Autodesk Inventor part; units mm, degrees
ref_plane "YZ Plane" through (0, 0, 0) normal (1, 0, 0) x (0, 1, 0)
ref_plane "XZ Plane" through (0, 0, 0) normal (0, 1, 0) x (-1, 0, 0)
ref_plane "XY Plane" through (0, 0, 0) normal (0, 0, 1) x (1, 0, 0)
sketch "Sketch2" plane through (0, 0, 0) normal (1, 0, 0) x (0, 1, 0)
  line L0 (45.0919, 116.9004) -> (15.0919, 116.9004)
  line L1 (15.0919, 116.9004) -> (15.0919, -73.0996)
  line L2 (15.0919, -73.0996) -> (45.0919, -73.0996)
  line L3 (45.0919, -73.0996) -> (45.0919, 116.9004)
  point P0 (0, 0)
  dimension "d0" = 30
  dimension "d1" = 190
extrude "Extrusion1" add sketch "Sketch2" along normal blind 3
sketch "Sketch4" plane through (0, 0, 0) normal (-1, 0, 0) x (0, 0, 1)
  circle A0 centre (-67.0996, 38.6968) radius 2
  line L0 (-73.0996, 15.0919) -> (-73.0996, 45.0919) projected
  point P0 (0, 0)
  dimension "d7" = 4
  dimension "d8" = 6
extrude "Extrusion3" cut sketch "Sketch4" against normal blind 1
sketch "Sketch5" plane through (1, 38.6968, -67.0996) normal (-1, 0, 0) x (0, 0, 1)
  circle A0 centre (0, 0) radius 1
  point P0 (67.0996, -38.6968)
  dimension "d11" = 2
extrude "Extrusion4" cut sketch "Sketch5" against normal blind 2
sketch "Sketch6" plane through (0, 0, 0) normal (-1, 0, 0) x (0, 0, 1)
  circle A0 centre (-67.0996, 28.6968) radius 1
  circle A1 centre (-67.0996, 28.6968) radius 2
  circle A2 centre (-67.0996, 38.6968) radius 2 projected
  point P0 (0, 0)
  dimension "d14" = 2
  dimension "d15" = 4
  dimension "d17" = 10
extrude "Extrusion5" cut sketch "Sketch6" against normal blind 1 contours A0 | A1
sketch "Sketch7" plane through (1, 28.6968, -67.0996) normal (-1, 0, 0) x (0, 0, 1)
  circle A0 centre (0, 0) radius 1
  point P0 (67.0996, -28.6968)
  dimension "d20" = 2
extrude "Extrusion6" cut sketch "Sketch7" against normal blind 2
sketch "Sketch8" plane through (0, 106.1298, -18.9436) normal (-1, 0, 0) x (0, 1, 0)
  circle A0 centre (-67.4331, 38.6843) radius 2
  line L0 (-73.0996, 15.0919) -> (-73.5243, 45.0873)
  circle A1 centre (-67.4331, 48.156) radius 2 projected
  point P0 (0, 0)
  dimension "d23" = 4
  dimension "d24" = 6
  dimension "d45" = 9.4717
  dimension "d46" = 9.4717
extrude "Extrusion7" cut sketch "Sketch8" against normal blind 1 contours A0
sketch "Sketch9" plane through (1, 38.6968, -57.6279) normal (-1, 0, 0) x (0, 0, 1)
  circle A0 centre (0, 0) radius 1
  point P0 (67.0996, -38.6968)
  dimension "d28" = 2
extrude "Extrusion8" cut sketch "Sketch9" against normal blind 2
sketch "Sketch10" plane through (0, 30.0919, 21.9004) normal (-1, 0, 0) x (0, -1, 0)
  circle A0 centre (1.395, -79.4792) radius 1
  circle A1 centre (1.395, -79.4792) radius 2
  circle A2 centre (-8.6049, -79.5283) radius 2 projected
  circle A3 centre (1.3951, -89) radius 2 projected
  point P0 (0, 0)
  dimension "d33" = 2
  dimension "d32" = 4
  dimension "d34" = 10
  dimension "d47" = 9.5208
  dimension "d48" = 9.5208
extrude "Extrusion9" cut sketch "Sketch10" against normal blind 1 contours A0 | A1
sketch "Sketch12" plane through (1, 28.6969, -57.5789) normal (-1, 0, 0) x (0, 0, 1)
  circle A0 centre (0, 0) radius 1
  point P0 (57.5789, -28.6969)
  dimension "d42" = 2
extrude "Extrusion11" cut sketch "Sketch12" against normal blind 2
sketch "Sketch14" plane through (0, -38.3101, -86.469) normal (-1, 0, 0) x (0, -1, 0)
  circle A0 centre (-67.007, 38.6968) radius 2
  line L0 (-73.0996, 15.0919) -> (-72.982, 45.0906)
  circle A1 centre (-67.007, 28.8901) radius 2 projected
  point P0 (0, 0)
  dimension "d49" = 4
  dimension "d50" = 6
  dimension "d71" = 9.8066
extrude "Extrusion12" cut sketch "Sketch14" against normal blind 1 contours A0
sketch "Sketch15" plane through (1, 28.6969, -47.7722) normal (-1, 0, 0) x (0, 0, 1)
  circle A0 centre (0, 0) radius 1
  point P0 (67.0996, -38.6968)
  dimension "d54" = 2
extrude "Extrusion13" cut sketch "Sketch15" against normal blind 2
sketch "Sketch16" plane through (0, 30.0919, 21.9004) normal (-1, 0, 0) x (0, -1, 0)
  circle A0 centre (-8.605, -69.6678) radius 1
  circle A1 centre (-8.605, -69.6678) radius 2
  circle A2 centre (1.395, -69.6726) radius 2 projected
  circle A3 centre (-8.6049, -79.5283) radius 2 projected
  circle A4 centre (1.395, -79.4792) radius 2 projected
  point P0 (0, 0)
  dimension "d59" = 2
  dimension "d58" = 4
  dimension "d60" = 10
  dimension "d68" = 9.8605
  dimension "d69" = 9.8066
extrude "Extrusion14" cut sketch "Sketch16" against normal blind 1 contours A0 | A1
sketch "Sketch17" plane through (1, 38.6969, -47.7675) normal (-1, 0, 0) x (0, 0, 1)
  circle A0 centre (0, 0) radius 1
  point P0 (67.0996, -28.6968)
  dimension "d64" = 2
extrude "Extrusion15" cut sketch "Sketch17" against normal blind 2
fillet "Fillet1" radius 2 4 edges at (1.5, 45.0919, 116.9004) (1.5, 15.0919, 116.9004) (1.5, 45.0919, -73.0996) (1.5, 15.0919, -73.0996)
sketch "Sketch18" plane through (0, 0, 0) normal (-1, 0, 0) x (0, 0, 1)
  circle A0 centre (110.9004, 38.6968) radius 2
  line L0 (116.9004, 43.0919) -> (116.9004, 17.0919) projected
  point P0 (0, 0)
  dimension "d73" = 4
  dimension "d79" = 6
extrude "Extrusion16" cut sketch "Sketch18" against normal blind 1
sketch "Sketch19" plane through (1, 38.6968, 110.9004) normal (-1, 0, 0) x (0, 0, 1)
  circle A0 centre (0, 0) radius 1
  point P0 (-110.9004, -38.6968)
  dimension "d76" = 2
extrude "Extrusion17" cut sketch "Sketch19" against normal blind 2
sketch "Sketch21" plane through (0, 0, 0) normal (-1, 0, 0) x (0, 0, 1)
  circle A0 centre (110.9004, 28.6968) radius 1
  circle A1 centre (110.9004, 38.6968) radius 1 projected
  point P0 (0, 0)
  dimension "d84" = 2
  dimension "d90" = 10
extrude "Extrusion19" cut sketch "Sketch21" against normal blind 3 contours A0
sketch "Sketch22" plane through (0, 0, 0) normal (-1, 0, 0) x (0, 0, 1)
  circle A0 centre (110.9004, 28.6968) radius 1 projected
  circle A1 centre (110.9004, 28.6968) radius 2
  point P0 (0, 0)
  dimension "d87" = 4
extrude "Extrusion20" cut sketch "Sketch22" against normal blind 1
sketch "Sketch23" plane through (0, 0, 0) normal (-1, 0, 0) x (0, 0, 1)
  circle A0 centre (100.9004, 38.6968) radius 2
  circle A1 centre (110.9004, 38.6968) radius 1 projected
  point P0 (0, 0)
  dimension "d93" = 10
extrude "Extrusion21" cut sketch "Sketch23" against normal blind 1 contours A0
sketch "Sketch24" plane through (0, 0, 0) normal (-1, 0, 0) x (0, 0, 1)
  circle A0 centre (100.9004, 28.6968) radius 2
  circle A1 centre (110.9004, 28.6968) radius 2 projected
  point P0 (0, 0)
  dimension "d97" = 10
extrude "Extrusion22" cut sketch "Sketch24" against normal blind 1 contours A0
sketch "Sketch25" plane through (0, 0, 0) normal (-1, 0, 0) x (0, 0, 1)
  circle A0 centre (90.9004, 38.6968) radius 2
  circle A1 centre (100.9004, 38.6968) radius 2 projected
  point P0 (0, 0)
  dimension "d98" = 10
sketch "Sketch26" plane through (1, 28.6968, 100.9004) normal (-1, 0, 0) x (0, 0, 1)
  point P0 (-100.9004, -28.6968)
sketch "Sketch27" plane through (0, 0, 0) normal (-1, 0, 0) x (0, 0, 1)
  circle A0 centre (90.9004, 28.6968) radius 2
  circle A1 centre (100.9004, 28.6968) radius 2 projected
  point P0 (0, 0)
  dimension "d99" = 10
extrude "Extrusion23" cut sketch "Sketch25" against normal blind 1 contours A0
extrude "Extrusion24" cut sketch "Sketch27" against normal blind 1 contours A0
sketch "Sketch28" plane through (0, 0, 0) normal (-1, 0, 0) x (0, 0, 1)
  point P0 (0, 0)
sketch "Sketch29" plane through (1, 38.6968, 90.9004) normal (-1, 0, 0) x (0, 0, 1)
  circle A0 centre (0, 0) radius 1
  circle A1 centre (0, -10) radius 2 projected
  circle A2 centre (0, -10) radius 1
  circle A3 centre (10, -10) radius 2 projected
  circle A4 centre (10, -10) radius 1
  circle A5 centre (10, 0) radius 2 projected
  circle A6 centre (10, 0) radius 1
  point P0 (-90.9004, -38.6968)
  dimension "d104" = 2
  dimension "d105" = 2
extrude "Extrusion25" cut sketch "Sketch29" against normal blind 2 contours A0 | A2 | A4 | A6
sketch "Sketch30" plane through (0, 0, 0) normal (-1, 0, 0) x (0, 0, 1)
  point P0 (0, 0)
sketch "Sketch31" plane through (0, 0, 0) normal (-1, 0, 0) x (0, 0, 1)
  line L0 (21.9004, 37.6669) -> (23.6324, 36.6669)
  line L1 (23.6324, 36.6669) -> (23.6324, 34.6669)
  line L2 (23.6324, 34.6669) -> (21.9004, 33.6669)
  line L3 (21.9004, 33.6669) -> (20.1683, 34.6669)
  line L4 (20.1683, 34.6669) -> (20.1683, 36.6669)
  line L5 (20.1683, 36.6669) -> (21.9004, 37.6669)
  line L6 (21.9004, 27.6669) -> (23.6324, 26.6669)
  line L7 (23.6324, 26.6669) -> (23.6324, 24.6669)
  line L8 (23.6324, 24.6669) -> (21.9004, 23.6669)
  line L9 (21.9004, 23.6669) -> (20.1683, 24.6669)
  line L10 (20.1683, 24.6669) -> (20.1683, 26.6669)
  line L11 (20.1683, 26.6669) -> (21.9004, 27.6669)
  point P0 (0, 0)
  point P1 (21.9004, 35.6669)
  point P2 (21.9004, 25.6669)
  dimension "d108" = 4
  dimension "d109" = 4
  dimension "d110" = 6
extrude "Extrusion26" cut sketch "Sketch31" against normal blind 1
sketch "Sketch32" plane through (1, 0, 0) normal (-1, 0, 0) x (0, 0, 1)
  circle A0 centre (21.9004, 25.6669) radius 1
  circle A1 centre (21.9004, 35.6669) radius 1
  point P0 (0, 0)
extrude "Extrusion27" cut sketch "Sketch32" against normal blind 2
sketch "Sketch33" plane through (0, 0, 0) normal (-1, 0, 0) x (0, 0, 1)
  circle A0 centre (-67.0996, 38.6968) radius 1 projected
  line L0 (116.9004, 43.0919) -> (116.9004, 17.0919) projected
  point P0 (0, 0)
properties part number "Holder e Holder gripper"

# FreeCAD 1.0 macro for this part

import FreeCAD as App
import Part
import Sketcher
from FreeCAD import Vector
Q = App.Units.Quantity


def edges_at(feature, points):
    """Names of the edges that pass closest to the given points."""
    edges = feature.Shape.Edges
    near = lambda p: min(range(len(edges)), key=lambda i: edges[i].distToShape(Part.Vertex(*p))[0])
    return sorted({f"Edge{near(p) + 1}" for p in points})

doc = App.newDocument("Part")
body = doc.addObject("PartDesign::Body", "Body")

sketch1 = doc.addObject("Sketcher::SketchObject", "Sketch")
body.addObject(sketch1)
sketch1.AttachmentSupport = (doc.YZ_Plane, [""])
sketch1.MapMode = "FlatFace"
sketch1.addGeometry([
    Part.LineSegment(Vector(45, -73, 0), Vector(45, 117, 0)),
    Part.LineSegment(Vector(45, 117, 0), Vector(15, 117, 0)),
    Part.LineSegment(Vector(15, 117, 0), Vector(15, -73, 0)),
    Part.LineSegment(Vector(15, -73, 0), Vector(45, -73, 0)),
], False)
sketch1.addConstraint([
    Sketcher.Constraint("Coincident", 0, 2, 1, 1),
    Sketcher.Constraint("Coincident", 1, 2, 2, 1),
    Sketcher.Constraint("Coincident", 2, 2, 3, 1),
    Sketcher.Constraint("Coincident", 3, 2, 0, 1),
    Sketcher.Constraint("Vertical", 0),
    Sketcher.Constraint("Horizontal", 1),
    Sketcher.Constraint("Vertical", 2),
    Sketcher.Constraint("Horizontal", 3),
    Sketcher.Constraint("DistanceX", 1, 2, 1, 1, 30.0),
    Sketcher.Constraint("DistanceY", 0, 1, 0, 2, 190.0),
    Sketcher.Constraint("DistanceX", -1, 1, 0, 2, 45.092),
    Sketcher.Constraint("DistanceY", -1, 1, 0, 2, 116.9004),
])
pad1 = doc.addObject("PartDesign::Pad", "Pad")
body.addObject(pad1)
pad1.Profile = sketch1
pad1.Length = 3

sketch2 = doc.addObject("Sketcher::SketchObject", "Sketch001")
body.addObject(sketch2)
sketch2.AttachmentSupport = (doc.YZ_Plane, [""])
sketch2.MapMode = "FlatFace"
sketch2.addGeometry(Part.Circle(Vector(38.7, -67.1, 0), Vector(0, 0, 1), 2), False)
sketch2.addConstraint([
    Sketcher.Constraint("Diameter", 0, 4.0),
    Sketcher.Constraint("DistanceX", -1, 1, 0, 3, 38.6968),
    Sketcher.Constraint("DistanceY", 0, 3, -1, 1, 67.0996),
])
pocket1 = doc.addObject("PartDesign::Pocket", "Pocket")
body.addObject(pocket1)
pocket1.Profile = sketch2
pocket1.Length = 1
pocket1.Reversed = True

sketch3 = doc.addObject("Sketcher::SketchObject", "Sketch002")
body.addObject(sketch3)
sketch3.AttachmentSupport = (doc.YZ_Plane, [""])
sketch3.MapMode = "FlatFace"
sketch3.AttachmentOffset = App.Placement(Vector(0, 0, 1), App.Rotation())
sketch3.addGeometry(Part.Circle(Vector(38.7, -67.1, 0), Vector(0, 0, 1), 1), False)
sketch3.addConstraint([
    Sketcher.Constraint("Diameter", 0, 2.0),
    Sketcher.Constraint("DistanceX", -1, 1, 0, 3, 38.6968),
    Sketcher.Constraint("DistanceY", 0, 3, -1, 1, 67.0996),
])
pocket2 = doc.addObject("PartDesign::Pocket", "Pocket001")
body.addObject(pocket2)
pocket2.Profile = sketch3
pocket2.Length = 2
pocket2.Reversed = True

sketch4 = doc.addObject("Sketcher::SketchObject", "Sketch003")
body.addObject(sketch4)
sketch4.AttachmentSupport = (doc.YZ_Plane, [""])
sketch4.MapMode = "FlatFace"
sketch4.addGeometry(Part.Circle(Vector(28.7, -67.1, 0), Vector(0, 0, 1), 2), False)
sketch4.addConstraint([
    Sketcher.Constraint("Diameter", 0, 4.0),
    Sketcher.Constraint("DistanceX", -1, 1, 0, 3, 28.6968),
    Sketcher.Constraint("DistanceY", 0, 3, -1, 1, 67.0996),
])
pocket3 = doc.addObject("PartDesign::Pocket", "Pocket002")
body.addObject(pocket3)
pocket3.Profile = sketch4
pocket3.Length = 1
pocket3.Reversed = True

sketch5 = doc.addObject("Sketcher::SketchObject", "Sketch004")
body.addObject(sketch5)
sketch5.AttachmentSupport = (doc.YZ_Plane, [""])
sketch5.MapMode = "FlatFace"
sketch5.AttachmentOffset = App.Placement(Vector(0, 0, 1), App.Rotation())
sketch5.addGeometry(Part.Circle(Vector(28.7, -67.1, 0), Vector(0, 0, 1), 1), False)
sketch5.addConstraint([
    Sketcher.Constraint("Diameter", 0, 2.0),
    Sketcher.Constraint("DistanceX", -1, 1, 0, 3, 28.6968),
    Sketcher.Constraint("DistanceY", 0, 3, -1, 1, 67.0996),
])
pocket4 = doc.addObject("PartDesign::Pocket", "Pocket003")
body.addObject(pocket4)
pocket4.Profile = sketch5
pocket4.Length = 2
pocket4.Reversed = True

sketch6 = doc.addObject("Sketcher::SketchObject", "Sketch005")
body.addObject(sketch6)
sketch6.AttachmentSupport = (doc.YZ_Plane, [""])
sketch6.MapMode = "FlatFace"
sketch6.addGeometry(Part.Circle(Vector(38.7, -57.6, 0), Vector(0, 0, 1), 2), False)
sketch6.addConstraint([
    Sketcher.Constraint("Diameter", 0, 4.0),
    Sketcher.Constraint("DistanceY", 0, 3, -1, 1, 57.628),
    Sketcher.Constraint("DistanceX", -1, 1, 0, 3, 38.6967),
])
pocket5 = doc.addObject("PartDesign::Pocket", "Pocket004")
body.addObject(pocket5)
pocket5.Profile = sketch6
pocket5.Length = 1
pocket5.Reversed = True

sketch7 = doc.addObject("Sketcher::SketchObject", "Sketch006")
body.addObject(sketch7)
sketch7.AttachmentSupport = (doc.YZ_Plane, [""])
sketch7.MapMode = "FlatFace"
sketch7.AttachmentOffset = App.Placement(Vector(0, 0, 1), App.Rotation())
sketch7.addGeometry(Part.Circle(Vector(38.7, -57.6, 0), Vector(0, 0, 1), 1), False)
sketch7.addConstraint([
    Sketcher.Constraint("Diameter", 0, 2.0),
    Sketcher.Constraint("DistanceY", 0, 3, -1, 1, 57.628),
    Sketcher.Constraint("DistanceX", -1, 1, 0, 3, 38.6968),
])
pocket6 = doc.addObject("PartDesign::Pocket", "Pocket005")
body.addObject(pocket6)
pocket6.Profile = sketch7
pocket6.Length = 2
pocket6.Reversed = True

sketch8 = doc.addObject("Sketcher::SketchObject", "Sketch007")
body.addObject(sketch8)
sketch8.AttachmentSupport = (doc.YZ_Plane, [""])
sketch8.MapMode = "FlatFace"
sketch8.addGeometry(Part.Circle(Vector(28.7, -57.6, 0), Vector(0, 0, 1), 2), False)
sketch8.addConstraint([
    Sketcher.Constraint("Diameter", 0, 4.0),
    Sketcher.Constraint("DistanceX", -1, 1, 0, 3, 28.697),
    Sketcher.Constraint("DistanceY", 0, 3, -1, 1, 57.5788),
])
pocket7 = doc.addObject("PartDesign::Pocket", "Pocket006")
body.addObject(pocket7)
pocket7.Profile = sketch8
pocket7.Length = 1
pocket7.Reversed = True

sketch9 = doc.addObject("Sketcher::SketchObject", "Sketch008")
body.addObject(sketch9)
sketch9.AttachmentSupport = (doc.YZ_Plane, [""])
sketch9.MapMode = "FlatFace"
sketch9.AttachmentOffset = App.Placement(Vector(0, 0, 1), App.Rotation())
sketch9.addGeometry(Part.Circle(Vector(28.7, -57.6, 0), Vector(0, 0, 1), 1), False)
sketch9.addConstraint([
    Sketcher.Constraint("Diameter", 0, 2.0),
    Sketcher.Constraint("DistanceX", -1, 1, 0, 3, 28.697),
    Sketcher.Constraint("DistanceY", 0, 3, -1, 1, 57.579),
])
pocket8 = doc.addObject("PartDesign::Pocket", "Pocket007")
body.addObject(pocket8)
pocket8.Profile = sketch9
pocket8.Length = 2
pocket8.Reversed = True

sketch10 = doc.addObject("Sketcher::SketchObject", "Sketch009")
body.addObject(sketch10)
sketch10.AttachmentSupport = (doc.YZ_Plane, [""])
sketch10.MapMode = "FlatFace"
sketch10.addGeometry(Part.Circle(Vector(28.7, -47.8, 0), Vector(0, 0, 1), 2), False)
sketch10.addConstraint([
    Sketcher.Constraint("Diameter", 0, 4.0),
    Sketcher.Constraint("DistanceX", -1, 1, 0, 3, 28.697),
    Sketcher.Constraint("DistanceY", 0, 3, -1, 1, 47.7722),
])
pocket9 = doc.addObject("PartDesign::Pocket", "Pocket008")
body.addObject(pocket9)
pocket9.Profile = sketch10
pocket9.Length = 1
pocket9.Reversed = True

sketch11 = doc.addObject("Sketcher::SketchObject", "Sketch010")
body.addObject(sketch11)
sketch11.AttachmentSupport = (doc.YZ_Plane, [""])
sketch11.MapMode = "FlatFace"
sketch11.AttachmentOffset = App.Placement(Vector(0, 0, 1), App.Rotation())
sketch11.addGeometry(Part.Circle(Vector(28.7, -47.8, 0), Vector(0, 0, 1), 1), False)
sketch11.addConstraint([
    Sketcher.Constraint("Diameter", 0, 2.0),
    Sketcher.Constraint("DistanceX", -1, 1, 0, 3, 28.697),
    Sketcher.Constraint("DistanceY", 0, 3, -1, 1, 47.7722),
])
pocket10 = doc.addObject("PartDesign::Pocket", "Pocket009")
body.addObject(pocket10)
pocket10.Profile = sketch11
pocket10.Length = 2
pocket10.Reversed = True

sketch12 = doc.addObject("Sketcher::SketchObject", "Sketch011")
body.addObject(sketch12)
sketch12.AttachmentSupport = (doc.YZ_Plane, [""])
sketch12.MapMode = "FlatFace"
sketch12.addGeometry(Part.Circle(Vector(38.7, -47.8, 0), Vector(0, 0, 1), 2), False)
sketch12.addConstraint([
    Sketcher.Constraint("Diameter", 0, 4.0),
    Sketcher.Constraint("DistanceX", -1, 1, 0, 3, 38.697),
    Sketcher.Constraint("DistanceY", 0, 3, -1, 1, 47.7674),
])
pocket11 = doc.addObject("PartDesign::Pocket", "Pocket010")
body.addObject(pocket11)
pocket11.Profile = sketch12
pocket11.Length = 1
pocket11.Reversed = True

sketch13 = doc.addObject("Sketcher::SketchObject", "Sketch012")
body.addObject(sketch13)
sketch13.AttachmentSupport = (doc.YZ_Plane, [""])
sketch13.MapMode = "FlatFace"
sketch13.AttachmentOffset = App.Placement(Vector(0, 0, 1), App.Rotation())
sketch13.addGeometry(Part.Circle(Vector(38.7, -47.8, 0), Vector(0, 0, 1), 1), False)
sketch13.addConstraint([
    Sketcher.Constraint("Diameter", 0, 2.0),
    Sketcher.Constraint("DistanceX", -1, 1, 0, 3, 38.697),
    Sketcher.Constraint("DistanceY", 0, 3, -1, 1, 47.7675),
])
pocket12 = doc.addObject("PartDesign::Pocket", "Pocket011")
body.addObject(pocket12)
pocket12.Profile = sketch13
pocket12.Length = 2
pocket12.Reversed = True
doc.recompute()

fillet = doc.addObject("PartDesign::Fillet", "Fillet")
body.addObject(fillet)
fillet.Base = (pocket12, edges_at(pocket12, [
    (1.5, 45.092, 116.9),
    (1.5, 15.092, 116.9),
    (1.5, 45.092, -73.1),
    (1.5, 15.092, -73.1),
]))
fillet.Radius = 2

sketch14 = doc.addObject("Sketcher::SketchObject", "Sketch013")
body.addObject(sketch14)
sketch14.AttachmentSupport = (doc.YZ_Plane, [""])
sketch14.MapMode = "FlatFace"
sketch14.addGeometry(Part.Circle(Vector(38.7, 110.9, 0), Vector(0, 0, 1), 2), False)
sketch14.addConstraint([
    Sketcher.Constraint("Diameter", 0, 4.0),
    Sketcher.Constraint("DistanceX", -1, 1, 0, 3, 38.6968),
    Sketcher.Constraint("DistanceY", -1, 1, 0, 3, 110.9004),
])
pocket13 = doc.addObject("PartDesign::Pocket", "Pocket012")
body.addObject(pocket13)
pocket13.Profile = sketch14
pocket13.Length = 1
pocket13.Reversed = True

sketch15 = doc.addObject("Sketcher::SketchObject", "Sketch014")
body.addObject(sketch15)
sketch15.AttachmentSupport = (doc.YZ_Plane, [""])
sketch15.MapMode = "FlatFace"
sketch15.AttachmentOffset = App.Placement(Vector(0, 0, 1), App.Rotation())
sketch15.addGeometry(Part.Circle(Vector(38.7, 110.9, 0), Vector(0, 0, 1), 1), False)
sketch15.addConstraint([
    Sketcher.Constraint("Diameter", 0, 2.0),
    Sketcher.Constraint("DistanceX", -1, 1, 0, 3, 38.6968),
    Sketcher.Constraint("DistanceY", -1, 1, 0, 3, 110.9004),
])
pocket14 = doc.addObject("PartDesign::Pocket", "Pocket013")
body.addObject(pocket14)
pocket14.Profile = sketch15
pocket14.Length = 2
pocket14.Reversed = True

sketch16 = doc.addObject("Sketcher::SketchObject", "Sketch015")
body.addObject(sketch16)
sketch16.AttachmentSupport = (doc.YZ_Plane, [""])
sketch16.MapMode = "FlatFace"
sketch16.addGeometry(Part.Circle(Vector(28.7, 110.9, 0), Vector(0, 0, 1), 1), False)
sketch16.addConstraint([
    Sketcher.Constraint("Diameter", 0, 2.0),
    Sketcher.Constraint("DistanceX", -1, 1, 0, 3, 28.6968),
    Sketcher.Constraint("DistanceY", -1, 1, 0, 3, 110.9004),
])
pocket15 = doc.addObject("PartDesign::Pocket", "Pocket014")
body.addObject(pocket15)
pocket15.Profile = sketch16
pocket15.Length = 3
pocket15.Reversed = True

sketch17 = doc.addObject("Sketcher::SketchObject", "Sketch016")
body.addObject(sketch17)
sketch17.AttachmentSupport = (doc.YZ_Plane, [""])
sketch17.MapMode = "FlatFace"
sketch17.addGeometry([
    Part.Circle(Vector(28.7, 110.9, 0), Vector(0, 0, 1), 2),
    Part.Circle(Vector(28.7, 110.9, 0), Vector(0, 0, 1), 1),
], False)
sketch17.addConstraint([
    Sketcher.Constraint("Coincident", 1, 3, 0, 3),
    Sketcher.Constraint("Diameter", 0, 4.0),
    Sketcher.Constraint("Diameter", 1, 2.0),
    Sketcher.Constraint("DistanceX", -1, 1, 0, 3, 28.6968),
    Sketcher.Constraint("DistanceY", -1, 1, 0, 3, 110.9004),
])
pocket16 = doc.addObject("PartDesign::Pocket", "Pocket015")
body.addObject(pocket16)
pocket16.Profile = sketch17
pocket16.Length = 1
pocket16.Reversed = True

sketch18 = doc.addObject("Sketcher::SketchObject", "Sketch017")
body.addObject(sketch18)
sketch18.AttachmentSupport = (doc.YZ_Plane, [""])
sketch18.MapMode = "FlatFace"
sketch18.addGeometry(Part.Circle(Vector(38.7, 100.9, 0), Vector(0, 0, 1), 2), False)
sketch18.addConstraint([
    Sketcher.Constraint("Diameter", 0, 4.0),
    Sketcher.Constraint("DistanceX", -1, 1, 0, 3, 38.6968),
    Sketcher.Constraint("DistanceY", -1, 1, 0, 3, 100.9004),
])
pocket17 = doc.addObject("PartDesign::Pocket", "Pocket016")
body.addObject(pocket17)
pocket17.Profile = sketch18
pocket17.Length = 1
pocket17.Reversed = True

sketch19 = doc.addObject("Sketcher::SketchObject", "Sketch018")
body.addObject(sketch19)
sketch19.AttachmentSupport = (doc.YZ_Plane, [""])
sketch19.MapMode = "FlatFace"
sketch19.addGeometry(Part.Circle(Vector(28.7, 100.9, 0), Vector(0, 0, 1), 2), False)
sketch19.addConstraint([
    Sketcher.Constraint("Diameter", 0, 4.0),
    Sketcher.Constraint("DistanceX", -1, 1, 0, 3, 28.6968),
    Sketcher.Constraint("DistanceY", -1, 1, 0, 3, 100.9004),
])
pocket18 = doc.addObject("PartDesign::Pocket", "Pocket017")
body.addObject(pocket18)
pocket18.Profile = sketch19
pocket18.Length = 1
pocket18.Reversed = True

sketch20 = doc.addObject("Sketcher::SketchObject", "Sketch019")
body.addObject(sketch20)
sketch20.AttachmentSupport = (doc.YZ_Plane, [""])
sketch20.MapMode = "FlatFace"
sketch20.addGeometry(Part.Circle(Vector(38.7, 90.9, 0), Vector(0, 0, 1), 2), False)
sketch20.addConstraint([
    Sketcher.Constraint("Diameter", 0, 4.0),
    Sketcher.Constraint("DistanceX", -1, 1, 0, 3, 38.6968),
    Sketcher.Constraint("DistanceY", -1, 1, 0, 3, 90.9004),
])
pocket19 = doc.addObject("PartDesign::Pocket", "Pocket018")
body.addObject(pocket19)
pocket19.Profile = sketch20
pocket19.Length = 1
pocket19.Reversed = True

sketch21 = doc.addObject("Sketcher::SketchObject", "Sketch020")
body.addObject(sketch21)
sketch21.AttachmentSupport = (doc.YZ_Plane, [""])
sketch21.MapMode = "FlatFace"
sketch21.addGeometry(Part.Circle(Vector(28.7, 90.9, 0), Vector(0, 0, 1), 2), False)
sketch21.addConstraint([
    Sketcher.Constraint("Diameter", 0, 4.0),
    Sketcher.Constraint("DistanceX", -1, 1, 0, 3, 28.6968),
    Sketcher.Constraint("DistanceY", -1, 1, 0, 3, 90.9004),
])
pocket20 = doc.addObject("PartDesign::Pocket", "Pocket019")
body.addObject(pocket20)
pocket20.Profile = sketch21
pocket20.Length = 1
pocket20.Reversed = True

sketch22 = doc.addObject("Sketcher::SketchObject", "Sketch021")
body.addObject(sketch22)
sketch22.AttachmentSupport = (doc.YZ_Plane, [""])
sketch22.MapMode = "FlatFace"
sketch22.AttachmentOffset = App.Placement(Vector(0, 0, 1), App.Rotation())
sketch22.addGeometry([
    Part.Circle(Vector(38.7, 90.9, 0), Vector(0, 0, 1), 1),
    Part.Circle(Vector(28.7, 90.9, 0), Vector(0, 0, 1), 1),
    Part.Circle(Vector(28.7, 100.9, 0), Vector(0, 0, 1), 1),
    Part.Circle(Vector(38.7, 100.9, 0), Vector(0, 0, 1), 1),
], False)
sketch22.addConstraint([
    Sketcher.Constraint("Equal", 0, 1),
    Sketcher.Constraint("Equal", 1, 2),
    Sketcher.Constraint("Equal", 2, 3),
    Sketcher.Constraint("Horizontal", 0, 3, 1, 3),
    Sketcher.Constraint("Horizontal", 2, 3, 3, 3),
    Sketcher.Constraint("Vertical", 1, 3, 2, 3),
    Sketcher.Constraint("Vertical", 0, 3, 3, 3),
    Sketcher.Constraint("Diameter", 0, 2.0),
    Sketcher.Constraint("DistanceX", 1, 3, 0, 3, 10.0),
    Sketcher.Constraint("DistanceY", 1, 3, 2, 3, 10.0),
    Sketcher.Constraint("DistanceX", -1, 1, 0, 3, 38.6968),
    Sketcher.Constraint("DistanceY", -1, 1, 0, 3, 90.9004),
])
pocket21 = doc.addObject("PartDesign::Pocket", "Pocket020")
body.addObject(pocket21)
pocket21.Profile = sketch22
pocket21.Length = 2
pocket21.Reversed = True

sketch23 = doc.addObject("Sketcher::SketchObject", "Sketch022")
body.addObject(sketch23)
sketch23.AttachmentSupport = (doc.YZ_Plane, [""])
sketch23.MapMode = "FlatFace"
sketch23.addGeometry([
    Part.LineSegment(Vector(36.7, 23.6, 0), Vector(37.7, 21.9, 0)),
    Part.LineSegment(Vector(37.7, 21.9, 0), Vector(36.7, 20.2, 0)),
    Part.LineSegment(Vector(36.7, 20.2, 0), Vector(34.7, 20.2, 0)),
    Part.LineSegment(Vector(34.7, 20.2, 0), Vector(33.7, 21.9, 0)),
    Part.LineSegment(Vector(33.7, 21.9, 0), Vector(34.7, 23.6, 0)),
    Part.LineSegment(Vector(34.7, 23.6, 0), Vector(36.7, 23.6, 0)),
    Part.LineSegment(Vector(26.7, 23.6, 0), Vector(27.7, 21.9, 0)),
    Part.LineSegment(Vector(27.7, 21.9, 0), Vector(26.7, 20.2, 0)),
    Part.LineSegment(Vector(26.7, 20.2, 0), Vector(24.7, 20.2, 0)),
    Part.LineSegment(Vector(24.7, 20.2, 0), Vector(23.7, 21.9, 0)),
    Part.LineSegment(Vector(23.7, 21.9, 0), Vector(24.7, 23.6, 0)),
    Part.LineSegment(Vector(24.7, 23.6, 0), Vector(26.7, 23.6, 0)),
], False)
sketch23.addConstraint([
    Sketcher.Constraint("Coincident", 0, 2, 1, 1),
    Sketcher.Constraint("Coincident", 1, 2, 2, 1),
    Sketcher.Constraint("Coincident", 2, 2, 3, 1),
    Sketcher.Constraint("Coincident", 3, 2, 4, 1),
    Sketcher.Constraint("Coincident", 4, 2, 5, 1),
    Sketcher.Constraint("Coincident", 5, 2, 0, 1),
    Sketcher.Constraint("Coincident", 6, 2, 7, 1),
    Sketcher.Constraint("Coincident", 7, 2, 8, 1),
    Sketcher.Constraint("Coincident", 8, 2, 9, 1),
    Sketcher.Constraint("Coincident", 9, 2, 10, 1),
    Sketcher.Constraint("Coincident", 10, 2, 11, 1),
    Sketcher.Constraint("Coincident", 11, 2, 6, 1),
    Sketcher.Constraint("Horizontal", 2),
    Sketcher.Constraint("Horizontal", 5),
    Sketcher.Constraint("Horizontal", 8),
    Sketcher.Constraint("Horizontal", 11),
    Sketcher.Constraint("Parallel", 0, 3),
    Sketcher.Constraint("Parallel", 1, 4),
    Sketcher.Constraint("Parallel", 3, 6),
    Sketcher.Constraint("Parallel", 4, 7),
    Sketcher.Constraint("Parallel", 6, 9),
    Sketcher.Constraint("Parallel", 7, 10),
    Sketcher.Constraint("Horizontal", 0, 2, 3, 2),
    Sketcher.Constraint("Horizontal", 3, 2, 6, 2),
    Sketcher.Constraint("Horizontal", 2, 2, 7, 2),
    Sketcher.Constraint("Horizontal", 6, 2, 9, 2),
    Sketcher.Constraint("Horizontal", 5, 2, 10, 2),
    Sketcher.Constraint("Vertical", 2, 2, 4, 2),
    Sketcher.Constraint("Vertical", 1, 2, 5, 2),
    Sketcher.Constraint("Equal", 5, 8),
    Sketcher.Constraint("DistanceX", 3, 2, 0, 2, 4.0),
    Sketcher.Constraint("DistanceX", 6, 2, 3, 2, 6.0),
    Sketcher.Constraint("DistanceX", 2, 2, 2, 1, 2.0),
    Sketcher.Constraint("Angle", 0, Q("-59.9993 deg")),
    Sketcher.Constraint("DistanceX", -1, 1, 0, 2, 37.667),
    Sketcher.Constraint("DistanceY", -1, 1, 0, 2, 21.9004),
])
pocket22 = doc.addObject("PartDesign::Pocket", "Pocket021")
body.addObject(pocket22)
pocket22.Profile = sketch23
pocket22.Length = 1
pocket22.Reversed = True

sketch24 = doc.addObject("Sketcher::SketchObject", "Sketch023")
body.addObject(sketch24)
sketch24.AttachmentSupport = (doc.YZ_Plane, [""])
sketch24.MapMode = "FlatFace"
sketch24.AttachmentOffset = App.Placement(Vector(0, 0, 1), App.Rotation())
sketch24.addGeometry([
    Part.Circle(Vector(25.7, 21.9, 0), Vector(0, 0, 1), 1),
    Part.Circle(Vector(35.7, 21.9, 0), Vector(0, 0, 1), 1),
], False)
sketch24.addConstraint([
    Sketcher.Constraint("Equal", 0, 1),
    Sketcher.Constraint("Horizontal", 0, 3, 1, 3),
    Sketcher.Constraint("Diameter", 0, 2.0),
    Sketcher.Constraint("DistanceX", 0, 3, 1, 3, 10.0),
    Sketcher.Constraint("DistanceX", -1, 1, 0, 3, 25.667),
    Sketcher.Constraint("DistanceY", -1, 1, 0, 3, 21.9004),
])
pocket23 = doc.addObject("PartDesign::Pocket", "Pocket022")
body.addObject(pocket23)
pocket23.Profile = sketch24
pocket23.Length = 2
pocket23.Reversed = True

doc.recompute()
